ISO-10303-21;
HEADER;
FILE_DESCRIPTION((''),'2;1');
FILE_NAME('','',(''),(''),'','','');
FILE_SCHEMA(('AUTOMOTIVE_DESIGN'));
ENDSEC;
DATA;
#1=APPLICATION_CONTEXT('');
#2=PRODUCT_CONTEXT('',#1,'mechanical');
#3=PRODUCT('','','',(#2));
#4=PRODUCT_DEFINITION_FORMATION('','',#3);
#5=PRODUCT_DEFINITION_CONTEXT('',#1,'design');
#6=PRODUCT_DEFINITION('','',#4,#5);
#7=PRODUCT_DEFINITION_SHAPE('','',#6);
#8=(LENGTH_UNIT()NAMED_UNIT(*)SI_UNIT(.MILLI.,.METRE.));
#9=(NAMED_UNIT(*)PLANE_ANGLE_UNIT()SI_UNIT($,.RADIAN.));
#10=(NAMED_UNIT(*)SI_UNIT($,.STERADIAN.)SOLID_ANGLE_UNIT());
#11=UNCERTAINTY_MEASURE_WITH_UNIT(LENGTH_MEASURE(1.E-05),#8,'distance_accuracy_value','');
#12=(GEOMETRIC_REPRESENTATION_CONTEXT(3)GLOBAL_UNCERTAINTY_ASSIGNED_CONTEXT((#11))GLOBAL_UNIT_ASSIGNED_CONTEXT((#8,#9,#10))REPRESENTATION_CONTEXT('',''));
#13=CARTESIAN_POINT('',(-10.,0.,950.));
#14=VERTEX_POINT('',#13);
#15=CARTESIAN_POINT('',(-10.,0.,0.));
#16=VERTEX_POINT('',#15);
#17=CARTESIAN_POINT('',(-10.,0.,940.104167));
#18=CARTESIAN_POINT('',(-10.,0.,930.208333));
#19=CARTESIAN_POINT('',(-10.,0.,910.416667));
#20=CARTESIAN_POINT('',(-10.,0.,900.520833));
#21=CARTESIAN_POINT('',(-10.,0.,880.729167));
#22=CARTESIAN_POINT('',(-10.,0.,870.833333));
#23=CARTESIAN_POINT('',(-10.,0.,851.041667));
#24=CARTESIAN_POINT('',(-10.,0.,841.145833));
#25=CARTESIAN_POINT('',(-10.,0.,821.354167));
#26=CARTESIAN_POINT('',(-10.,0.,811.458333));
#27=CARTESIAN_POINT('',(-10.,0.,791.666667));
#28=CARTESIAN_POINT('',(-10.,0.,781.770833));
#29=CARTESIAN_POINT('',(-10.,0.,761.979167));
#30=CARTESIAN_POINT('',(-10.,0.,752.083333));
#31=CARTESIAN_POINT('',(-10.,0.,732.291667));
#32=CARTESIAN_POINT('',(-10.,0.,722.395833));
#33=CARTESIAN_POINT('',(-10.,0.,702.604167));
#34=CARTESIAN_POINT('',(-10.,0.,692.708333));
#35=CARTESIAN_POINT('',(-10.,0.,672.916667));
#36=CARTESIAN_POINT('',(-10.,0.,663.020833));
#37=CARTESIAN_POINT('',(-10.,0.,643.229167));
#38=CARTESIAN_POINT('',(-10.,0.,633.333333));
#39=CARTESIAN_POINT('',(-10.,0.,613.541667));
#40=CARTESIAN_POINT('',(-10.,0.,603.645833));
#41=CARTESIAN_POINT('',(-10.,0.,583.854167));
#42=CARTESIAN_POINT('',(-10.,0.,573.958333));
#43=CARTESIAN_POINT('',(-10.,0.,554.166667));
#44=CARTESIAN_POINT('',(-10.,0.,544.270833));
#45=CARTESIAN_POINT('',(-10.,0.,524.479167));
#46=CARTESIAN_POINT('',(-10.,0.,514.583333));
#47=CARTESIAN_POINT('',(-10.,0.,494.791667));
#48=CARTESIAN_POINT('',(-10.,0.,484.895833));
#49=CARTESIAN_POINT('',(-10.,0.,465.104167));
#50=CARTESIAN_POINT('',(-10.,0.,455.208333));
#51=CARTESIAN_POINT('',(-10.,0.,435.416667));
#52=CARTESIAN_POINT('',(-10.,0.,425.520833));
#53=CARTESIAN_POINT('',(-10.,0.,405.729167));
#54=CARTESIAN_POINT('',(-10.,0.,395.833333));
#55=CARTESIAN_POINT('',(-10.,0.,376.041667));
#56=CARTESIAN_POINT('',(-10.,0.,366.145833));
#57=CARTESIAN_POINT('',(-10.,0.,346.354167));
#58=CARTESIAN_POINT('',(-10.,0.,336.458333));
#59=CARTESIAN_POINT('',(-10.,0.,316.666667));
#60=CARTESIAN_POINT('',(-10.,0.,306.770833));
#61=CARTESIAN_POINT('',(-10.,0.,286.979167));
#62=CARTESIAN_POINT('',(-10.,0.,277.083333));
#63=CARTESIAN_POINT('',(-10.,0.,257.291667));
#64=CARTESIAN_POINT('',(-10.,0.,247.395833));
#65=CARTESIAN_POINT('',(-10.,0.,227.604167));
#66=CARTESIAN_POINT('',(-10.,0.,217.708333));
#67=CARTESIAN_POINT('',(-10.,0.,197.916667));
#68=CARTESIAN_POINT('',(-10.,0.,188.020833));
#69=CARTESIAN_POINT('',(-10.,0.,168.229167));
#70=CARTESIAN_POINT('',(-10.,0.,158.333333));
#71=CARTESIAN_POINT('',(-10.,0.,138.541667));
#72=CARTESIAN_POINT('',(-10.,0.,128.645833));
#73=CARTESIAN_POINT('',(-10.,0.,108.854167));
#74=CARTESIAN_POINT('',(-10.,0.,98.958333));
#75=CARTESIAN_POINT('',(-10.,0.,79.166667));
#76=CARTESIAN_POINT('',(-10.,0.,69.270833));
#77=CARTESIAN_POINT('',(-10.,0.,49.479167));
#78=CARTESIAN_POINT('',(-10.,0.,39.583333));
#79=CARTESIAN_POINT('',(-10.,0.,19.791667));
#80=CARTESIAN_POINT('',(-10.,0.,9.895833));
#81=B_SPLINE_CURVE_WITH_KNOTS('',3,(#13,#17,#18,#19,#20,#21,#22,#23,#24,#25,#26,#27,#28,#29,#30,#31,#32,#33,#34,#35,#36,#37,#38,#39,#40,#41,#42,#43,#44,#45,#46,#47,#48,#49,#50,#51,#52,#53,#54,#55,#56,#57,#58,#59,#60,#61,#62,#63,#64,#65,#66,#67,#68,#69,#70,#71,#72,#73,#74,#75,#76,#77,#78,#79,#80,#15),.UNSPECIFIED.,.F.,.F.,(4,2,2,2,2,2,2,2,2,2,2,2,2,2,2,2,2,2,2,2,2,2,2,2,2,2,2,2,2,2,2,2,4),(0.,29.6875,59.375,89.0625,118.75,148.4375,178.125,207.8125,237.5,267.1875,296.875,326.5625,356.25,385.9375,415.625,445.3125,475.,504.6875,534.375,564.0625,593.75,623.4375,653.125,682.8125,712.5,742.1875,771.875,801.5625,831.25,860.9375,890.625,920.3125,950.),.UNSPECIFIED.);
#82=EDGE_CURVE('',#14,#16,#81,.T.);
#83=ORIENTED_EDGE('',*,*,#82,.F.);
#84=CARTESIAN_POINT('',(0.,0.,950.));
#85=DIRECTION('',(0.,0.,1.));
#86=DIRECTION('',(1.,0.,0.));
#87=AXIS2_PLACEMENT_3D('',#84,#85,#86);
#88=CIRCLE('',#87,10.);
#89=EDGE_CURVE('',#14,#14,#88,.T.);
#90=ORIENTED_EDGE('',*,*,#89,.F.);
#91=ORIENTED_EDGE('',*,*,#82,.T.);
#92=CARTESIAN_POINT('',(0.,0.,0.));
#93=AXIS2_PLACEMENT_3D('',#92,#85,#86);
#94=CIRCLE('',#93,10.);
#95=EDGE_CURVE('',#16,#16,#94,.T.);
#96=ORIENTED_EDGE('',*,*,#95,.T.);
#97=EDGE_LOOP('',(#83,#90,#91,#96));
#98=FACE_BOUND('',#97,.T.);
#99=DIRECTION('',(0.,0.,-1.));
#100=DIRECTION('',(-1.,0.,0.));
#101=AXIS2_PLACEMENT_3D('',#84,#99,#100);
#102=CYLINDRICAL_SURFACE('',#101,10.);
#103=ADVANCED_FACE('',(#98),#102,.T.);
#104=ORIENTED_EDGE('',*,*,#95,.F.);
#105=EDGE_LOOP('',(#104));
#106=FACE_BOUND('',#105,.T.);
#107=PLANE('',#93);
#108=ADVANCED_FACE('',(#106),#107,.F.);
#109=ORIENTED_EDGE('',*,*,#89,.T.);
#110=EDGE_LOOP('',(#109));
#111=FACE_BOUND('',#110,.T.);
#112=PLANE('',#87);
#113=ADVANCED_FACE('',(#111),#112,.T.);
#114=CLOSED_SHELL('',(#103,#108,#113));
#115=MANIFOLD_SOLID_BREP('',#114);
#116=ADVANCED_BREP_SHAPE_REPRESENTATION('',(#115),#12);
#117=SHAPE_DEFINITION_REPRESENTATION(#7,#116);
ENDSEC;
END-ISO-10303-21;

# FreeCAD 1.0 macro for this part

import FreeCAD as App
import Part
import Sketcher

doc = App.newDocument("Part")
params = doc.addObject("Spreadsheet::Sheet", "Params")
for row, (alias, value) in enumerate([
    ("sketch1_diameter", "20 mm"),
    ("pad1_length", "950 mm"),
], start=1):
    params.set(f"A{row}", alias)
    params.set(f"B{row}", "=" + value)
    params.setAlias(f"B{row}", alias)

body = doc.addObject("PartDesign::Body", "Body")

# Sketch on XY plane
sketch1 = body.newObject("Sketcher::SketchObject", "Sketch")
sketch1.AttachmentSupport = (doc.getObject("XY_Plane"), [""])
sketch1.MapMode = "FlatFace"
sketch1.addGeometry(Part.Circle(App.Vector(0, 0, 0), App.Vector(0, 0, 1), 10), False)
sketch1.addConstraint(Sketcher.Constraint("Coincident", 0, 3, -1, 1))
sketch1.addConstraint(Sketcher.Constraint("Diameter", 0, 20.0))
sketch1.setExpression("Constraints[1]", "Params.sketch1_diameter")
pad1 = body.newObject("PartDesign::Pad", "Pad")
pad1.Profile = sketch1
pad1.setExpression("Length", "Params.pad1_length")

doc.recompute()
